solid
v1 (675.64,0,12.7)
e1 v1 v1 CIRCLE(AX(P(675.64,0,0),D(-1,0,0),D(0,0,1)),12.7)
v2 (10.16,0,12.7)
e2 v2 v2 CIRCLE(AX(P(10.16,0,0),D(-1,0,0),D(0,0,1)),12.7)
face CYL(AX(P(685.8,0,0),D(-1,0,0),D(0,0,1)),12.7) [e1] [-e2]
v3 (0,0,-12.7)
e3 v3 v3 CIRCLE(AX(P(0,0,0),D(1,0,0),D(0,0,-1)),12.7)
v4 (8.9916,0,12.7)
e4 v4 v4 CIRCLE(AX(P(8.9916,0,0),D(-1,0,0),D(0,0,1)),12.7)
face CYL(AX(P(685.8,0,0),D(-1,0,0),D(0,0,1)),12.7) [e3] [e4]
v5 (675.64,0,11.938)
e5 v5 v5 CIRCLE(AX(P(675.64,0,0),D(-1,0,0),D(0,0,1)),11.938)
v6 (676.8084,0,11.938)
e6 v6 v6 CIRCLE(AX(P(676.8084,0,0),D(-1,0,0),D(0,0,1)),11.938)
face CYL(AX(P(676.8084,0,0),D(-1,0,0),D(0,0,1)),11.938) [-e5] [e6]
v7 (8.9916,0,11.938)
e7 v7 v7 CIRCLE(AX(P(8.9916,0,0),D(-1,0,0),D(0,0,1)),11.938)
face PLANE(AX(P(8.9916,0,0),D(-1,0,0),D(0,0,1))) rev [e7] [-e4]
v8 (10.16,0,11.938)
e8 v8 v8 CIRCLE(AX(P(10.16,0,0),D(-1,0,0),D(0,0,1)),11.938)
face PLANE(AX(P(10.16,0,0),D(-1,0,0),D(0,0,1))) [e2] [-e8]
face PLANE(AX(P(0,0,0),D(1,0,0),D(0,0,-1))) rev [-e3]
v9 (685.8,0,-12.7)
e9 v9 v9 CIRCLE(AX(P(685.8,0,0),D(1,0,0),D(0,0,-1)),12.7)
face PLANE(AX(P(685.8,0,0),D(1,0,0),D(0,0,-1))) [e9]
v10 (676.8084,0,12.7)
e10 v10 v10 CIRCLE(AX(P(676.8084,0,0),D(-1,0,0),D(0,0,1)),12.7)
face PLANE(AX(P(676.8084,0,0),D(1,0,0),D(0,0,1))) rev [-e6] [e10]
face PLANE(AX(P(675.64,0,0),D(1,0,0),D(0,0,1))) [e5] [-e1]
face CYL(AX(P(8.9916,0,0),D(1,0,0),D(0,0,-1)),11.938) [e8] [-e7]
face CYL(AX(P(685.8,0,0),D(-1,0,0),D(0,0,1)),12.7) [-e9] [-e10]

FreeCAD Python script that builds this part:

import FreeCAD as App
import Part
import Sketcher
from FreeCAD import Vector
Q = App.Units.Quantity

doc = App.newDocument("Part")
body = doc.addObject("PartDesign::Body", "Body")

# Sketch on YZ plane
sketch1 = body.newObject("Sketcher::SketchObject", "Sketch")
sketch1.AttachmentSupport = (doc.getObject("YZ_Plane"), [""])
sketch1.MapMode = "FlatFace"
sketch1.addGeometry(Part.Circle(Vector(0, 0, 0), Vector(0, 0, 1), 13), False)
sketch1.addConstraint([
    Sketcher.Constraint("Coincident", 0, 3, -1, 1),
    Sketcher.Constraint("Diameter", 0, Q("1 in")),
])
pad1 = body.newObject("PartDesign::Pad", "Pad")
pad1.Profile = sketch1
pad1.Length = Q("27 in")

# Sketch on YZ plane
sketch2 = body.newObject("Sketcher::SketchObject", "Sketch001")
sketch2.AttachmentSupport = (doc.getObject("YZ_Plane"), [""])
sketch2.MapMode = "FlatFace"
sketch2.AttachmentOffset = App.Placement(Vector(0, 0, 0.354 * 25.4), App.Rotation())
sketch2.addGeometry([
    Part.Circle(Vector(0, 0, 0), Vector(0, 0, 1), 13),
    Part.Circle(Vector(0, 0, 0), Vector(0, 0, 1), 12),
], False)
sketch2.addConstraint([
    Sketcher.Constraint("Coincident", 0, 3, -1, 1),
    Sketcher.Constraint("Coincident", 1, 3, -1, 1),
    Sketcher.Constraint("Diameter", 0, Q("1 in")),
    Sketcher.Constraint("Diameter", 1, Q("0.94 in")),
])
pocket1 = body.newObject("PartDesign::Pocket", "Pocket")
pocket1.Profile = sketch2
pocket1.Length = Q("0.046 in")
pocket1.Reversed = True
doc.recompute()

datumplane = body.newObject("PartDesign::Plane", "DatumPlane")
datumplane.AttachmentSupport = (doc.getObject("YZ_Plane"), [""])
datumplane.MapMode = "FlatFace"
datumplane.AttachmentOffset = App.Placement(Vector(0, 0, 13.5 * 25.4), App.Rotation())
mirrored = body.newObject("PartDesign::Mirrored", "Mirrored")
mirrored.Originals = [pocket1]
mirrored.MirrorPlane = (datumplane, [""])
body.Tip = mirrored

doc.recompute()
